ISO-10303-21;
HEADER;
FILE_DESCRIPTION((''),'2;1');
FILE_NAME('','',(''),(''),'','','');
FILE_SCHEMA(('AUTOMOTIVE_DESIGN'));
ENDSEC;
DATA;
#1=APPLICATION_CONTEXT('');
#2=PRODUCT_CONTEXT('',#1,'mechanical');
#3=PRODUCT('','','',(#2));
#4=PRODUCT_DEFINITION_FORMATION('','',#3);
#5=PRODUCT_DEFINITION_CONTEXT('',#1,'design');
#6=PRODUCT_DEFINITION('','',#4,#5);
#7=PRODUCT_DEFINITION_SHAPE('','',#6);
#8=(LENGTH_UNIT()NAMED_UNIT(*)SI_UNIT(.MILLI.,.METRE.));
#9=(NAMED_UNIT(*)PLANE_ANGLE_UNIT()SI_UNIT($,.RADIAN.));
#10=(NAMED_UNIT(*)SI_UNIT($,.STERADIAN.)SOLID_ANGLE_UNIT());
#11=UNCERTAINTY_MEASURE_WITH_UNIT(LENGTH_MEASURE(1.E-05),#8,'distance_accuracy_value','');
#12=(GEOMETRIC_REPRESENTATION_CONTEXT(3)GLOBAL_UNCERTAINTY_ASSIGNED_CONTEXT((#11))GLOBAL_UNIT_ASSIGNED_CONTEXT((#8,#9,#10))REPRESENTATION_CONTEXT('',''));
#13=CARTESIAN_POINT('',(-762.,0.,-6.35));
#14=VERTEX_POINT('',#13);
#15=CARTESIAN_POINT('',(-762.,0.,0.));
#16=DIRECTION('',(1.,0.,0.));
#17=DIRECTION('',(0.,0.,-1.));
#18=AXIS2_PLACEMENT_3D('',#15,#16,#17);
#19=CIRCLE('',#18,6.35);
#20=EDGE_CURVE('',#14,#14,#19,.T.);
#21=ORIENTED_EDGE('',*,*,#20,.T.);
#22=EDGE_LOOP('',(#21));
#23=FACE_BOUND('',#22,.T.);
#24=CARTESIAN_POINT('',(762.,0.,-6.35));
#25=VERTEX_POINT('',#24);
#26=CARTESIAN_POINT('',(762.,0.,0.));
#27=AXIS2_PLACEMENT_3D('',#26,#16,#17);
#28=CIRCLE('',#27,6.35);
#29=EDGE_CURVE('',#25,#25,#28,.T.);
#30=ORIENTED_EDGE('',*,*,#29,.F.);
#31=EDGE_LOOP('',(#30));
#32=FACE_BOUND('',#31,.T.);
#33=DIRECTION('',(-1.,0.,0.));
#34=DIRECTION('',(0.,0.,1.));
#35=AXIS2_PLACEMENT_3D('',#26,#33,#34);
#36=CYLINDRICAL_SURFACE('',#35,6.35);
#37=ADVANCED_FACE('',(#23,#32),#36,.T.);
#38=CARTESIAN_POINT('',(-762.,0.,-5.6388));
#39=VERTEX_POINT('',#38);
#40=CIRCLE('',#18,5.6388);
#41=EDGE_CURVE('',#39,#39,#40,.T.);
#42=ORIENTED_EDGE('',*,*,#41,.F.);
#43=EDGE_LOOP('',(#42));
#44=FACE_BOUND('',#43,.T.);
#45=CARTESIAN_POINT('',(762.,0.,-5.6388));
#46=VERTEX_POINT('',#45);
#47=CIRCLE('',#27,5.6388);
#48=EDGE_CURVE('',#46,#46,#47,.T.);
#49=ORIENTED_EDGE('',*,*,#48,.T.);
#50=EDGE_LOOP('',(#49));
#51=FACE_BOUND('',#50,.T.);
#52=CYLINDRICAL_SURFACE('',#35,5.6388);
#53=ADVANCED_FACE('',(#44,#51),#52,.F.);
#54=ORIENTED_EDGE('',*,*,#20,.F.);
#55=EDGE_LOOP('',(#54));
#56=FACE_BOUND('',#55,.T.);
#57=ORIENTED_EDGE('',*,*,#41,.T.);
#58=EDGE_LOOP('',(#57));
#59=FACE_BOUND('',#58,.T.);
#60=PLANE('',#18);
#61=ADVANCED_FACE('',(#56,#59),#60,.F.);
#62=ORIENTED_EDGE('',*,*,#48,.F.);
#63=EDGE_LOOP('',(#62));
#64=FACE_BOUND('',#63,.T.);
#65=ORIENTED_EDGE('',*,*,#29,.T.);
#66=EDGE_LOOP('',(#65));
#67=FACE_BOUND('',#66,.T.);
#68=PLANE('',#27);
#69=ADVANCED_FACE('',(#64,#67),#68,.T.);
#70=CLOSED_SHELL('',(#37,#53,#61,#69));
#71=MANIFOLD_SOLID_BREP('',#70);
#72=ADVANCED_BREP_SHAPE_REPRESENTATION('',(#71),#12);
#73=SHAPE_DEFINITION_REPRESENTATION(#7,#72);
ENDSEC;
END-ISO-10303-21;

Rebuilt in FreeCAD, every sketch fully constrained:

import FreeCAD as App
import Part
import Sketcher
from FreeCAD import Vector
Q = App.Units.Quantity

doc = App.newDocument("Part")
body = doc.addObject("PartDesign::Body", "Body")

sketch1 = body.newObject("Sketcher::SketchObject", "Sketch")
sketch1.AttachmentSupport = (doc.getObject("YZ_Plane"), [""])
sketch1.MapMode = "FlatFace"
sketch1.addGeometry([
    Part.Circle(Vector(0, 0, 0), Vector(0, 0, 1), 6),
    Part.Circle(Vector(0, 0, 0), Vector(0, 0, 1), 6),
], False)
sketch1.addConstraint([
    Sketcher.Constraint("Coincident", 0, 3, -1, 1),
    Sketcher.Constraint("Coincident", 1, 3, -1, 1),
    Sketcher.Constraint("Diameter", 0, Q("0.5 in")),
    Sketcher.Constraint("Diameter", 1, Q("0.444 in")),
])
pad1 = body.newObject("PartDesign::Pad", "Pad")
pad1.Profile = sketch1
pad1.Length = Q("60 in")
pad1.Midplane = True

doc.recompute()
